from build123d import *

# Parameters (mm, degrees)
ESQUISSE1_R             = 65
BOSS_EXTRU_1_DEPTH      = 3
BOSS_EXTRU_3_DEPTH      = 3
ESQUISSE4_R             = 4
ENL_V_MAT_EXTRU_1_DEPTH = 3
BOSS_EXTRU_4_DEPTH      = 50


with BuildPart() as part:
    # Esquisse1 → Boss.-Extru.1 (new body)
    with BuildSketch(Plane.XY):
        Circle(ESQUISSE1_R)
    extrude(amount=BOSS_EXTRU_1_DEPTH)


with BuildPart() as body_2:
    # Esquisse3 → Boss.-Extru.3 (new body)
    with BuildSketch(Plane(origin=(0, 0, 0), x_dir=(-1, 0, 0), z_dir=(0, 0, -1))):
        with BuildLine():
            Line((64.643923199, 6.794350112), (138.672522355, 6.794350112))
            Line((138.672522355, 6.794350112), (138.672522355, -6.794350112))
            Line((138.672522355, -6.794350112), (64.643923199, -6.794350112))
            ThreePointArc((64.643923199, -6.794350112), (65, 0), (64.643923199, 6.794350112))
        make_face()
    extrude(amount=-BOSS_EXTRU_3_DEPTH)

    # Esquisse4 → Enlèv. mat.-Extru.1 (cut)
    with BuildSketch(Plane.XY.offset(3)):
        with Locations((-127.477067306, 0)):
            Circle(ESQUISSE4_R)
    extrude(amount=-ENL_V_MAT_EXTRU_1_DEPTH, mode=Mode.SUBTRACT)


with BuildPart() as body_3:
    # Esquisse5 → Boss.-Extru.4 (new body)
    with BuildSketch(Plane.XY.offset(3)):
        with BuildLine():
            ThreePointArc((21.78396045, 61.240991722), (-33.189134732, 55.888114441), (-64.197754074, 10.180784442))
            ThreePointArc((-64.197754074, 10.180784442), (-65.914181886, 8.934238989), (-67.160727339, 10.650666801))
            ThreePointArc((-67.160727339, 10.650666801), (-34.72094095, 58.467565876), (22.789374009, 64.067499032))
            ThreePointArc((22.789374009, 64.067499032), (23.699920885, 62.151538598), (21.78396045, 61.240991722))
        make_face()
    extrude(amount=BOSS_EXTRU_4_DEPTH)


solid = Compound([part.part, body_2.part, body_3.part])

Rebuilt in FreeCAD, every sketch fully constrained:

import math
import FreeCAD as App
import Part
import Sketcher
from FreeCAD import Vector
Q = App.Units.Quantity

doc = App.newDocument("Part")
body = doc.addObject("PartDesign::Body", "Body")

# Sketch on XY plane
sketch1 = body.newObject("Sketcher::SketchObject", "Sketch")
sketch1.AttachmentSupport = (doc.getObject("XY_Plane"), [""])
sketch1.MapMode = "FlatFace"
sketch1.addGeometry(Part.Circle(Vector(0, 0, 0), Vector(0, 0, 1), 65), False)
sketch1.addConstraint(Sketcher.Constraint("Coincident", 0, 3, -1, 1))
sketch1.addConstraint(Sketcher.Constraint("Diameter", 0, Q("130 mm")))
pad1 = body.newObject("PartDesign::Pad", "Pad")
pad1.Profile = sketch1
pad1.Length = 3
body2 = doc.addObject("PartDesign::Body", "Body001")

# Sketch on XY plane
sketch2 = body2.newObject("Sketcher::SketchObject", "Sketch001")
sketch2.AttachmentSupport = (doc.getObject("XY_Plane001"), [""])
sketch2.MapMode = "FlatFace"
sketch2.addGeometry(Part.LineSegment(Vector(-138.672522, 6.79435, 0), Vector(-64.643923, 6.79435, 0)), False)
sketch2.addGeometry(Part.ArcOfCircle(Part.Circle(Vector(0, 0, 0), Vector(0, 0, 1), 65), math.radians(174), math.radians(186)), False)
sketch2.addGeometry(Part.LineSegment(Vector(-64.643923, -6.79435, 0), Vector(-138.672522, -6.79435, 0)), False)
sketch2.addGeometry(Part.LineSegment(Vector(-138.672522, -6.79435, 0), Vector(-138.672522, 6.79435, 0)), False)
sketch2.addConstraint(Sketcher.Constraint("Coincident", 0, 2, 1, 1))
sketch2.addConstraint(Sketcher.Constraint("Coincident", 1, 2, 2, 1))
sketch2.addConstraint(Sketcher.Constraint("Coincident", 2, 2, 3, 1))
sketch2.addConstraint(Sketcher.Constraint("Coincident", 3, 2, 0, 1))
sketch2.addConstraint(Sketcher.Constraint("Horizontal", 0))
sketch2.addConstraint(Sketcher.Constraint("Horizontal", 2))
sketch2.addConstraint(Sketcher.Constraint("Vertical", 3))
sketch2.addConstraint(Sketcher.Constraint("Coincident", 1, 3, -1, 1))
sketch2.addConstraint(Sketcher.Constraint("Vertical", 0, 2, 1, 2))
sketch2.addConstraint(Sketcher.Constraint("Radius", 1, Q("65 mm")))
sketch2.addConstraint(Sketcher.Constraint("DistanceX", 0, 1, 0, 2, Q("74.028599 mm")))
sketch2.addConstraint(Sketcher.Constraint("DistanceY", 3, 1, 3, 2, Q("13.5887 mm")))
pad2 = body2.newObject("PartDesign::Pad", "Pad001")
pad2.Profile = sketch2
pad2.Length = 3

# Sketch on XY plane
sketch3 = body2.newObject("Sketcher::SketchObject", "Sketch002")
sketch3.AttachmentSupport = (doc.getObject("XY_Plane001"), [""])
sketch3.MapMode = "FlatFace"
sketch3.AttachmentOffset = App.Placement(Vector(0, 0, 3), App.Rotation())
sketch3.addGeometry(Part.Circle(Vector(-127.477067, 0, 0), Vector(0, 0, 1), 4), False)
sketch3.addConstraint(Sketcher.Constraint("PointOnObject", 0, 3, -1))
sketch3.addConstraint(Sketcher.Constraint("Diameter", 0, Q("8 mm")))
sketch3.addConstraint(Sketcher.Constraint("DistanceX", 0, 3, -1, 1, Q("127.477067 mm")))
pocket1 = body2.newObject("PartDesign::Pocket", "Pocket")
pocket1.Profile = sketch3
pocket1.Length = 3
body3 = doc.addObject("PartDesign::Body", "Body002")

# Sketch on XY plane
sketch4 = body3.newObject("Sketcher::SketchObject", "Sketch003")
sketch4.AttachmentSupport = (doc.getObject("XY_Plane002"), [""])
sketch4.MapMode = "FlatFace"
sketch4.AttachmentOffset = App.Placement(Vector(0, 0, 3), App.Rotation())
sketch4.addGeometry(Part.ArcOfCircle(Part.Circle(Vector(0, 0, 0), Vector(0, 0, 1), 65), math.radians(70.419079), math.radians(170.988805)), False)
sketch4.addGeometry(Part.ArcOfCircle(Part.Circle(Vector(22.286667, 62.654245, 0), Vector(0, 0, 1), 1.5), math.radians(-109.580921), math.radians(70.419079)), False)
sketch4.addGeometry(Part.ArcOfCircle(Part.Circle(Vector(0, 0, 0), Vector(0, 0, 1), 68), math.radians(70.419079), math.radians(170.988805)), False)
sketch4.addGeometry(Part.ArcOfCircle(Part.Circle(Vector(-65.679241, 10.415726, 0), Vector(0, 0, 1), 1.5), math.radians(170.988805), math.radians(350.988805)), False)
sketch4.addConstraint(Sketcher.Constraint("Tangent", 0, 1, 1, 1))
sketch4.addConstraint(Sketcher.Constraint("Tangent", 1, 2, 2, 1))
sketch4.addConstraint(Sketcher.Constraint("Tangent", 2, 2, 3, 1))
sketch4.addConstraint(Sketcher.Constraint("Tangent", 3, 2, 0, 2))
sketch4.addConstraint(Sketcher.Constraint("Coincident", 0, 3, -1, 1))
sketch4.addConstraint(Sketcher.Constraint("Coincident", 2, 3, -1, 1))
sketch4.addConstraint(Sketcher.Constraint("Radius", 0, Q("65 mm")))
sketch4.addConstraint(Sketcher.Constraint("Radius", 2, Q("68 mm")))
sketch4.addConstraint(Sketcher.Constraint("DistanceY", -1, 1, 1, 2, Q("64.067499 mm")))
sketch4.addConstraint(Sketcher.Constraint("DistanceX", 3, 3, 0, 1, Q("87.463201 mm")))
pad3 = body3.newObject("PartDesign::Pad", "Pad002")
pad3.Profile = sketch4
pad3.Length = 50

doc.recompute()
